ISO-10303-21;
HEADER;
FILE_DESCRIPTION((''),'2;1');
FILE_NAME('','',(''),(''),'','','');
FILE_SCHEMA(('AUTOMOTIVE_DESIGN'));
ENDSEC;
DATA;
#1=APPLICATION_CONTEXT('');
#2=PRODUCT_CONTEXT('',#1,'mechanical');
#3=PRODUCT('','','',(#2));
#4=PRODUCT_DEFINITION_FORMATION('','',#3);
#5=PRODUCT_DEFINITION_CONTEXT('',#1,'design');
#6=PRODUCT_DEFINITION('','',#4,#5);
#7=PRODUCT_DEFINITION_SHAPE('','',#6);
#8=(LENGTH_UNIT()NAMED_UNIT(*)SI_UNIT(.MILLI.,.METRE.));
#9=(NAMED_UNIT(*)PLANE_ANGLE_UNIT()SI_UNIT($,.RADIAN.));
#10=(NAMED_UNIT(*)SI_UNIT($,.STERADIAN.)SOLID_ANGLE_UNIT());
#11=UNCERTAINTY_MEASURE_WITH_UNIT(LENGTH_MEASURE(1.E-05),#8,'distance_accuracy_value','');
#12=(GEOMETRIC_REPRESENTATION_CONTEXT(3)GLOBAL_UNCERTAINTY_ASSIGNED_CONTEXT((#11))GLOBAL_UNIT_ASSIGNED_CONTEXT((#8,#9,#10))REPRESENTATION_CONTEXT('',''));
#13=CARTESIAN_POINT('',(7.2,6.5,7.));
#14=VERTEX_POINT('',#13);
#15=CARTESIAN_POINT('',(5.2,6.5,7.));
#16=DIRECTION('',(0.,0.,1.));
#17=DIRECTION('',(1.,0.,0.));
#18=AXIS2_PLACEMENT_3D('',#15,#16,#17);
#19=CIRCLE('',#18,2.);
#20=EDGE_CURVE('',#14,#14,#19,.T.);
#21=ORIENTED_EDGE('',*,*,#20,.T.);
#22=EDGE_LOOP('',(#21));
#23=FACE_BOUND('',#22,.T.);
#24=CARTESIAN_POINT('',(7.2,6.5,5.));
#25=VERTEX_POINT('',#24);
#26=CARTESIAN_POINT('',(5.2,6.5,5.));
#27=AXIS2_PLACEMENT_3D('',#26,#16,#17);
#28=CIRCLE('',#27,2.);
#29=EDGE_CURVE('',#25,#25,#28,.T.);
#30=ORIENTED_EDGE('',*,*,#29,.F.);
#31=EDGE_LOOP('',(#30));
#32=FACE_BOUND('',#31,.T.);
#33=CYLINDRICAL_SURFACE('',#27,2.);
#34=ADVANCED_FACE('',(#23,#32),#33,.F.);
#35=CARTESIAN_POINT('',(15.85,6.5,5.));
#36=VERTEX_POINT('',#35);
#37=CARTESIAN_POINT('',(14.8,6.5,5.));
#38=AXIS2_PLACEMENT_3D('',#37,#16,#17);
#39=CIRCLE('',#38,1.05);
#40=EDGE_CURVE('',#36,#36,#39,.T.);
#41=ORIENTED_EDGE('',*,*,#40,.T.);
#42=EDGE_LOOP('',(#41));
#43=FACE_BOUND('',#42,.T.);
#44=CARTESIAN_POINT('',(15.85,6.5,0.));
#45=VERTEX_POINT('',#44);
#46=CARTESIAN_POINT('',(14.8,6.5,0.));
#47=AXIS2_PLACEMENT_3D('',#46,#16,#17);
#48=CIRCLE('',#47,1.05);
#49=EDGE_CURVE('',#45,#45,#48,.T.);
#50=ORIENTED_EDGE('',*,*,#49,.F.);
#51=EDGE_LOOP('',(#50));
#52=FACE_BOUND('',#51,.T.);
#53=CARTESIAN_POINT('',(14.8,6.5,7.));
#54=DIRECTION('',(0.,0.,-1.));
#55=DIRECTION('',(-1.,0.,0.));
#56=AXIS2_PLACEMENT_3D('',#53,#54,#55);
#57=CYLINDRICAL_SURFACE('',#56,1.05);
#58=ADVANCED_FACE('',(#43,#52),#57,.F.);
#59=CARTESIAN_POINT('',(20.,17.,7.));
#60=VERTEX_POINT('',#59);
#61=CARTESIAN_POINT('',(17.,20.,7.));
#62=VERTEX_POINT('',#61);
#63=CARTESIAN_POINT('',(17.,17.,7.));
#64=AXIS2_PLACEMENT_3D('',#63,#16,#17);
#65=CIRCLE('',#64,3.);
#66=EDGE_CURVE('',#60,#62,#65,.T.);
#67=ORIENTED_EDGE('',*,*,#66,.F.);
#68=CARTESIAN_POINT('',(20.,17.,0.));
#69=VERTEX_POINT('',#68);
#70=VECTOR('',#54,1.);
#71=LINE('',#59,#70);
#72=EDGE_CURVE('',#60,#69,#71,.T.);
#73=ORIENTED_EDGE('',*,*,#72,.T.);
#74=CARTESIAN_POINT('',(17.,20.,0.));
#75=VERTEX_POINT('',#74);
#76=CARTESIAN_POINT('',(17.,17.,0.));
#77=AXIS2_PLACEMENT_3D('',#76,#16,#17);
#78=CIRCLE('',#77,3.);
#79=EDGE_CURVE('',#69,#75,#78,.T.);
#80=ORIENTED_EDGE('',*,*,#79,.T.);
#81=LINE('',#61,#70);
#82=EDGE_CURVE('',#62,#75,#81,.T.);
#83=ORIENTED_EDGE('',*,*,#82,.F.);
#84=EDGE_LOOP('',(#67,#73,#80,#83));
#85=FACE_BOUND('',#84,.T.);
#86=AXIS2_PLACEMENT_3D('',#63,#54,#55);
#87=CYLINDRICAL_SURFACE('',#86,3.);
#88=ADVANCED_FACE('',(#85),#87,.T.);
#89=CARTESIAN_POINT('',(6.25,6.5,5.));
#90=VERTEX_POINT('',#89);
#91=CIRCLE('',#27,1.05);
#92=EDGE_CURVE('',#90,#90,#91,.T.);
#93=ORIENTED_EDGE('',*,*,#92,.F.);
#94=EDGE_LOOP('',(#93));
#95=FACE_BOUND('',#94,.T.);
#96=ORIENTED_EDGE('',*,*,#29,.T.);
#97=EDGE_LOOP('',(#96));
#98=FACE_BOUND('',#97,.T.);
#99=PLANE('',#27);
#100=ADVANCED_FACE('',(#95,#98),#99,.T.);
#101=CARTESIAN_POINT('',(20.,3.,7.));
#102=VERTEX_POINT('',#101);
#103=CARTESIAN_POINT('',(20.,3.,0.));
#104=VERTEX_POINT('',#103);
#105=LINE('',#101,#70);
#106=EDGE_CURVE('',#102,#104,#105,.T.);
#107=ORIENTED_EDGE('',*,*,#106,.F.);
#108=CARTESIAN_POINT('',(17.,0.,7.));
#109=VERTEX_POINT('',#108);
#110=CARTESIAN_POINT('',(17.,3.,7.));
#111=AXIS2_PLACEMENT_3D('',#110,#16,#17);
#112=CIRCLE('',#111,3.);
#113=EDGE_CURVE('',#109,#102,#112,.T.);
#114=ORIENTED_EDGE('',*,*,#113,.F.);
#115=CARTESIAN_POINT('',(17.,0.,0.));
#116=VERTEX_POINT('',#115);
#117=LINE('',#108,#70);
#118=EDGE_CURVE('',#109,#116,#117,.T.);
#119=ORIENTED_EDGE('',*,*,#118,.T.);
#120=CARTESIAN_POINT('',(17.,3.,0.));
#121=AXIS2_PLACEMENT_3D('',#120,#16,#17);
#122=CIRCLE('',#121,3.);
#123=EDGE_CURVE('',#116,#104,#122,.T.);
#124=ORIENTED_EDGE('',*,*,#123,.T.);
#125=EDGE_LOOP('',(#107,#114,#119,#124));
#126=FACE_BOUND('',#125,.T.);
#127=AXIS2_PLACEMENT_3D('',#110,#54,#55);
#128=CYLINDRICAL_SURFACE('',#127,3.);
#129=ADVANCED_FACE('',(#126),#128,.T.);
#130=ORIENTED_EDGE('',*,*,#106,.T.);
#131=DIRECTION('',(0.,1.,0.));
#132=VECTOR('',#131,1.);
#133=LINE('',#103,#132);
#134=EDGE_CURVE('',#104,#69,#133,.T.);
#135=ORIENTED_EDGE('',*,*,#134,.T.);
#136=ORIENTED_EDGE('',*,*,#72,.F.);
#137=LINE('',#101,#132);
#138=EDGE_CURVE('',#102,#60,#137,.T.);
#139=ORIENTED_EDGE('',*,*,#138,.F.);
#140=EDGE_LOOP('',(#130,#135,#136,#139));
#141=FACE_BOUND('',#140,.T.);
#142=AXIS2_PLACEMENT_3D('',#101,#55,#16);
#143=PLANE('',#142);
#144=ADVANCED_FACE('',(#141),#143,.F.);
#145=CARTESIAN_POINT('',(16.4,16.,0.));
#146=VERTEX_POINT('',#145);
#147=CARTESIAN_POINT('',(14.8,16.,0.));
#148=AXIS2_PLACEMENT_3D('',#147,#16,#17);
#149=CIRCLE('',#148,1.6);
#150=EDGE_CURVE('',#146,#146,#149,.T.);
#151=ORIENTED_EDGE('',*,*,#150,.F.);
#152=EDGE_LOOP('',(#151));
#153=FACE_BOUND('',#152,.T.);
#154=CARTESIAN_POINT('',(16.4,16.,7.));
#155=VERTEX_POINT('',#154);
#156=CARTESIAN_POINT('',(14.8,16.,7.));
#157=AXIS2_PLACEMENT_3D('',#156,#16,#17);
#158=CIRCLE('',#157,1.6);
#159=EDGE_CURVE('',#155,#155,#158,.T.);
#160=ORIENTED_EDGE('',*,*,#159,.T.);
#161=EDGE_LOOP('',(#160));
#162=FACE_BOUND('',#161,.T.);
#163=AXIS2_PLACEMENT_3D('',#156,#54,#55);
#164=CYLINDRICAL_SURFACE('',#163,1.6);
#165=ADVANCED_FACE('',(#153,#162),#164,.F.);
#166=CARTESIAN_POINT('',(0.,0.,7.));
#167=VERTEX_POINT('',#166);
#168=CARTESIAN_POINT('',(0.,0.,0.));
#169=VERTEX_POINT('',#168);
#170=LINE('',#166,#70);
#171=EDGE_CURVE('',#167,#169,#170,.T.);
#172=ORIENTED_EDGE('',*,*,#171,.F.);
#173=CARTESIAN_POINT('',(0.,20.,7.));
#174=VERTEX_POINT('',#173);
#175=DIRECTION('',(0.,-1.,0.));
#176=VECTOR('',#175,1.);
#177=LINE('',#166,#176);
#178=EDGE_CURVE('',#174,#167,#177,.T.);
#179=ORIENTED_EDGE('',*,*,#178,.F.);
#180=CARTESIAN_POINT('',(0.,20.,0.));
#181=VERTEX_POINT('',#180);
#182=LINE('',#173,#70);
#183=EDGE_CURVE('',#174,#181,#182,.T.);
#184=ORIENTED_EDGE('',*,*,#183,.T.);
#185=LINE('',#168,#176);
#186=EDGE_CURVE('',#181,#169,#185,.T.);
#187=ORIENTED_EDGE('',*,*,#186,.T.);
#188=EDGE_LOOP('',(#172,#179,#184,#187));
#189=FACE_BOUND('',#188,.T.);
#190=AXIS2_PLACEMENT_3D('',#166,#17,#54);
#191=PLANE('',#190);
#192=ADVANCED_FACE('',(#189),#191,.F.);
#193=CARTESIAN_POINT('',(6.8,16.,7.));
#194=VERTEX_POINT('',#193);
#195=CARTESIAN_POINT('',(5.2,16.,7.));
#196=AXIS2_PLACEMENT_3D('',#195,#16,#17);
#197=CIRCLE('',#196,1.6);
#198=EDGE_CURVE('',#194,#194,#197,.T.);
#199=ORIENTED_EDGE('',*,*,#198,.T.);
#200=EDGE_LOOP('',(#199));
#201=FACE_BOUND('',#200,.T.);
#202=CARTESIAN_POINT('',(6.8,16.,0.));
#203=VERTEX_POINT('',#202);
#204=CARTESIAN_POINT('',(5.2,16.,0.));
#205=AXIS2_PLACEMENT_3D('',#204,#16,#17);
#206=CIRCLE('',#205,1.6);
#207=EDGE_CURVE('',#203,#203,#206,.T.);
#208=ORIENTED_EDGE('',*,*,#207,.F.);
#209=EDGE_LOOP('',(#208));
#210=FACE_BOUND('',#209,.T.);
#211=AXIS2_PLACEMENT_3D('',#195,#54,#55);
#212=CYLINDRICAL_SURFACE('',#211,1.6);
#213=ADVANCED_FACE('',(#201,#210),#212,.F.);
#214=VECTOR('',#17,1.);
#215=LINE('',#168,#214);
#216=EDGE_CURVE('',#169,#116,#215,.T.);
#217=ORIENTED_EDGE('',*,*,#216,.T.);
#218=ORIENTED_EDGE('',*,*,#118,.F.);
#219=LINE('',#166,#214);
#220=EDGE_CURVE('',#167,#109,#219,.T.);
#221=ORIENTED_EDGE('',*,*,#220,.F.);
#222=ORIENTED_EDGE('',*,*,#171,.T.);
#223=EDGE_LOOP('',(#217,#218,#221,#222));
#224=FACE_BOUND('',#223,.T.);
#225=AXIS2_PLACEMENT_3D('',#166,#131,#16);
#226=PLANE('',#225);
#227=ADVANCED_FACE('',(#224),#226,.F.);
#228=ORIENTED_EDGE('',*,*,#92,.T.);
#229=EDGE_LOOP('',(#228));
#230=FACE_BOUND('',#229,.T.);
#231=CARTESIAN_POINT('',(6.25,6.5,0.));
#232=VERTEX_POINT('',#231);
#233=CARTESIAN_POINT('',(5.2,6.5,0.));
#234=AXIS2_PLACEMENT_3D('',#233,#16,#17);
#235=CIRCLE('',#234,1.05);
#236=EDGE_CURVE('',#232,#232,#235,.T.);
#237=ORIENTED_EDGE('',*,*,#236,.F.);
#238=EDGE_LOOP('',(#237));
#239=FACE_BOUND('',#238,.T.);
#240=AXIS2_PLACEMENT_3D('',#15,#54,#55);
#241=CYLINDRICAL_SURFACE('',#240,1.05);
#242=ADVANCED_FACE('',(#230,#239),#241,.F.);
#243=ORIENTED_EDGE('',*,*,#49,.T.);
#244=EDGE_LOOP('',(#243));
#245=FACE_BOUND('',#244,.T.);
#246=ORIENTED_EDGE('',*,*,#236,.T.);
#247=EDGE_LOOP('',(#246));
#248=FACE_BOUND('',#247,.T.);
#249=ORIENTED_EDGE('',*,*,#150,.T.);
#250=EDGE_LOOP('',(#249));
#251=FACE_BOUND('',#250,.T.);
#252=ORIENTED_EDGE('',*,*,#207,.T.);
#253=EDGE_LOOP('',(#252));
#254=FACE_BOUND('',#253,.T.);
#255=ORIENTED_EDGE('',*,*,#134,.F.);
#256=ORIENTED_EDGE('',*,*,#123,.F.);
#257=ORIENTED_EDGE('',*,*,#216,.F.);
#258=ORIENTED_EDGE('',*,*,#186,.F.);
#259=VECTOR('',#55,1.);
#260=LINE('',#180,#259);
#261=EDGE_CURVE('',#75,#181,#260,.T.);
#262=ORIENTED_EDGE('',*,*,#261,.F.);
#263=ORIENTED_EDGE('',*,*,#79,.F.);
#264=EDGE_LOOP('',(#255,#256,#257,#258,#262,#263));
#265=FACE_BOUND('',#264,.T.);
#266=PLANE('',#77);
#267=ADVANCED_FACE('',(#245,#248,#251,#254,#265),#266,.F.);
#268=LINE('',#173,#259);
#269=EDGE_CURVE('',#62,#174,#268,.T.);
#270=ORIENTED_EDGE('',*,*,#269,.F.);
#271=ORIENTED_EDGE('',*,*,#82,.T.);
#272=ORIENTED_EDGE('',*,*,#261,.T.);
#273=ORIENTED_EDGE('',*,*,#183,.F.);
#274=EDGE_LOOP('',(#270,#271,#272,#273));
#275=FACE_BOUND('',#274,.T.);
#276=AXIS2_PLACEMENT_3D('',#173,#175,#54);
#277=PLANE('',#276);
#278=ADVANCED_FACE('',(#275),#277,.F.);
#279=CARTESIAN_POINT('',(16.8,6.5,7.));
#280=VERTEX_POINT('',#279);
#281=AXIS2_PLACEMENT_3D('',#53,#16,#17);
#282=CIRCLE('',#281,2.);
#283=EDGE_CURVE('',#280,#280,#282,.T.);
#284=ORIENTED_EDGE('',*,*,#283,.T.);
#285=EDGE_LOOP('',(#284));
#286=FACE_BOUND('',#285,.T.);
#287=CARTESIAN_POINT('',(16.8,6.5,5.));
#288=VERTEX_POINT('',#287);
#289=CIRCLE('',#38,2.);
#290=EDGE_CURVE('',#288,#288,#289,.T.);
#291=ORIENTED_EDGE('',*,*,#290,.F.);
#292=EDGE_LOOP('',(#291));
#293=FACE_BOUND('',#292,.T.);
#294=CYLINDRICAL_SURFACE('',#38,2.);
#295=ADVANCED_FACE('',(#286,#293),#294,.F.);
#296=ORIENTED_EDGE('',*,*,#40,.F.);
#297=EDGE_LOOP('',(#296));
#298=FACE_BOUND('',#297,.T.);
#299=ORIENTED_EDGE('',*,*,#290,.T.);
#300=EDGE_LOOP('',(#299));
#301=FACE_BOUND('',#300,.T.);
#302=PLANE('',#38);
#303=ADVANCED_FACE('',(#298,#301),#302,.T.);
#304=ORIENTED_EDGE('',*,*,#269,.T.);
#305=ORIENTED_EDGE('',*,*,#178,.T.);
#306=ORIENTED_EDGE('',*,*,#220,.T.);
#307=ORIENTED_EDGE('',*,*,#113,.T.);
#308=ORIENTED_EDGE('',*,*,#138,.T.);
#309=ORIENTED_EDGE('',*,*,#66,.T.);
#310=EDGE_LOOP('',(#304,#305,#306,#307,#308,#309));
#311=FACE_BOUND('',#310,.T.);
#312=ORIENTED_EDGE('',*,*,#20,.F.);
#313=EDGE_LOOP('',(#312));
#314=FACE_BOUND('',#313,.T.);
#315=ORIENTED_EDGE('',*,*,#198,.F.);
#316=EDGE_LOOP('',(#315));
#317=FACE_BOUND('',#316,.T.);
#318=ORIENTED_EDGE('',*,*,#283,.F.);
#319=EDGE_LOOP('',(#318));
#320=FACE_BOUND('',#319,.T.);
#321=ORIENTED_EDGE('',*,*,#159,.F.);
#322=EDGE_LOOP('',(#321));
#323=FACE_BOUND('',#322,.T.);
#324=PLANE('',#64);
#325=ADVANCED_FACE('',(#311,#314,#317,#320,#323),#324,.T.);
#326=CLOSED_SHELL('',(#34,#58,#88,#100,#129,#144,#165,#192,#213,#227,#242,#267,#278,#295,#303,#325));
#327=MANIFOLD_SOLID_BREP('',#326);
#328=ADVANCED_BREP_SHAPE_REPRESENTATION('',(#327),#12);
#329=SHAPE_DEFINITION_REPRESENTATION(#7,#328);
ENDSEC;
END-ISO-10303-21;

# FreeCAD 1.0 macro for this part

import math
import FreeCAD as App
import Part
import Sketcher
from FreeCAD import Vector
Q = App.Units.Quantity

doc = App.newDocument("Part")
body = doc.addObject("PartDesign::Body", "Body")

# Sketch on XY plane
sketch1 = body.newObject("Sketcher::SketchObject", "Sketch")
sketch1.AttachmentSupport = (doc.getObject("XY_Plane"), [""])
sketch1.MapMode = "FlatFace"
sketch1.addGeometry([
    Part.LineSegment(Vector(0, 0, 0), Vector(17, 0, 0)),  # 0
    Part.ArcOfCircle(Part.Circle(Vector(17, 3, 0), Vector(0, 0, 1), 3), math.radians(-90), math.radians(0)),  # 1
    Part.LineSegment(Vector(20, 3, 0), Vector(20, 17, 0)),  # 2
    Part.ArcOfCircle(Part.Circle(Vector(17, 17, 0), Vector(0, 0, 1), 3), math.radians(0), math.radians(90)),  # 3
    Part.LineSegment(Vector(17, 20, 0), Vector(0, 20, 0)),  # 4
    Part.LineSegment(Vector(0, 20, 0), Vector(0, 0, 0)),  # 5
    Part.Circle(Vector(5.2, 6.5, 0), Vector(0, 0, 1), 1.1),  # 6
    Part.Circle(Vector(14.8, 6.5, 0), Vector(0, 0, 1), 1.1),  # 7
    Part.Circle(Vector(5.2, 16, 0), Vector(0, 0, 1), 1.6),  # 8
    Part.Circle(Vector(14.8, 16, 0), Vector(0, 0, 1), 1.6),  # 9
], False)
sketch1.addConstraint([
    Sketcher.Constraint("Tangent", 0, 2, 1, 1),
    Sketcher.Constraint("Tangent", 1, 2, 2, 1),
    Sketcher.Constraint("Tangent", 2, 2, 3, 1),
    Sketcher.Constraint("Tangent", 3, 2, 4, 1),
    Sketcher.Constraint("Coincident", 4, 2, 5, 1),
    Sketcher.Constraint("Coincident", 5, 2, 0, 1),
    Sketcher.Constraint("Horizontal", 0),
    Sketcher.Constraint("Vertical", 2),
    Sketcher.Constraint("Horizontal", 4),
    Sketcher.Constraint("Vertical", 5),
    Sketcher.Constraint("Coincident", 5, 2, -1, 1),
    Sketcher.Constraint("Equal", 1, 3),
    Sketcher.Constraint("Equal", 6, 7),
    Sketcher.Constraint("Equal", 8, 9),
    Sketcher.Constraint("Horizontal", 6, 3, 7, 3),
    Sketcher.Constraint("Horizontal", 8, 3, 9, 3),
    Sketcher.Constraint("Vertical", 6, 3, 8, 3),
    Sketcher.Constraint("Vertical", 7, 3, 9, 3),
    Sketcher.Constraint("Radius", 1, Q("3 mm")),
    Sketcher.Constraint("Diameter", 6, Q("2.1 mm")),
    Sketcher.Constraint("Diameter", 8, Q("3.2 mm")),
    Sketcher.Constraint("DistanceX", 0, 1, 0, 2, Q("17 mm")),
    Sketcher.Constraint("DistanceY", 2, 1, 2, 2, Q("14 mm")),
    Sketcher.Constraint("DistanceY", -1, 1, 8, 3, Q("16 mm")),
    Sketcher.Constraint("DistanceX", -1, 1, 6, 3, Q("5.2 mm")),
    Sketcher.Constraint("DistanceY", -1, 1, 6, 3, Q("6.5 mm")),
    Sketcher.Constraint("DistanceX", -1, 1, 7, 3, Q("14.8 mm")),
])
pad1 = body.newObject("PartDesign::Pad", "Pad")
pad1.Profile = sketch1
pad1.Length = 7

# Sketch on XY plane
sketch2 = body.newObject("Sketcher::SketchObject", "Sketch001")
sketch2.AttachmentSupport = (doc.getObject("XY_Plane"), [""])
sketch2.MapMode = "FlatFace"
sketch2.AttachmentOffset = App.Placement(Vector(0, 0, 7), App.Rotation())
sketch2.addGeometry([
    Part.Circle(Vector(5.2, 6.5, 0), Vector(0, 0, 1), 2),
    Part.Circle(Vector(14.8, 6.5, 0), Vector(0, 0, 1), 2),
], False)
sketch2.addConstraint([
    Sketcher.Constraint("Equal", 0, 1),
    Sketcher.Constraint("Horizontal", 0, 3, 1, 3),
    Sketcher.Constraint("Diameter", 0, Q("4 mm")),
    Sketcher.Constraint("DistanceX", -1, 1, 0, 3, Q("5.2 mm")),
    Sketcher.Constraint("DistanceY", -1, 1, 0, 3, Q("6.5 mm")),
    Sketcher.Constraint("DistanceX", -1, 1, 1, 3, Q("14.8 mm")),
])
pocket1 = body.newObject("PartDesign::Pocket", "Pocket")
pocket1.Profile = sketch2
pocket1.Length = 2

doc.recompute()
